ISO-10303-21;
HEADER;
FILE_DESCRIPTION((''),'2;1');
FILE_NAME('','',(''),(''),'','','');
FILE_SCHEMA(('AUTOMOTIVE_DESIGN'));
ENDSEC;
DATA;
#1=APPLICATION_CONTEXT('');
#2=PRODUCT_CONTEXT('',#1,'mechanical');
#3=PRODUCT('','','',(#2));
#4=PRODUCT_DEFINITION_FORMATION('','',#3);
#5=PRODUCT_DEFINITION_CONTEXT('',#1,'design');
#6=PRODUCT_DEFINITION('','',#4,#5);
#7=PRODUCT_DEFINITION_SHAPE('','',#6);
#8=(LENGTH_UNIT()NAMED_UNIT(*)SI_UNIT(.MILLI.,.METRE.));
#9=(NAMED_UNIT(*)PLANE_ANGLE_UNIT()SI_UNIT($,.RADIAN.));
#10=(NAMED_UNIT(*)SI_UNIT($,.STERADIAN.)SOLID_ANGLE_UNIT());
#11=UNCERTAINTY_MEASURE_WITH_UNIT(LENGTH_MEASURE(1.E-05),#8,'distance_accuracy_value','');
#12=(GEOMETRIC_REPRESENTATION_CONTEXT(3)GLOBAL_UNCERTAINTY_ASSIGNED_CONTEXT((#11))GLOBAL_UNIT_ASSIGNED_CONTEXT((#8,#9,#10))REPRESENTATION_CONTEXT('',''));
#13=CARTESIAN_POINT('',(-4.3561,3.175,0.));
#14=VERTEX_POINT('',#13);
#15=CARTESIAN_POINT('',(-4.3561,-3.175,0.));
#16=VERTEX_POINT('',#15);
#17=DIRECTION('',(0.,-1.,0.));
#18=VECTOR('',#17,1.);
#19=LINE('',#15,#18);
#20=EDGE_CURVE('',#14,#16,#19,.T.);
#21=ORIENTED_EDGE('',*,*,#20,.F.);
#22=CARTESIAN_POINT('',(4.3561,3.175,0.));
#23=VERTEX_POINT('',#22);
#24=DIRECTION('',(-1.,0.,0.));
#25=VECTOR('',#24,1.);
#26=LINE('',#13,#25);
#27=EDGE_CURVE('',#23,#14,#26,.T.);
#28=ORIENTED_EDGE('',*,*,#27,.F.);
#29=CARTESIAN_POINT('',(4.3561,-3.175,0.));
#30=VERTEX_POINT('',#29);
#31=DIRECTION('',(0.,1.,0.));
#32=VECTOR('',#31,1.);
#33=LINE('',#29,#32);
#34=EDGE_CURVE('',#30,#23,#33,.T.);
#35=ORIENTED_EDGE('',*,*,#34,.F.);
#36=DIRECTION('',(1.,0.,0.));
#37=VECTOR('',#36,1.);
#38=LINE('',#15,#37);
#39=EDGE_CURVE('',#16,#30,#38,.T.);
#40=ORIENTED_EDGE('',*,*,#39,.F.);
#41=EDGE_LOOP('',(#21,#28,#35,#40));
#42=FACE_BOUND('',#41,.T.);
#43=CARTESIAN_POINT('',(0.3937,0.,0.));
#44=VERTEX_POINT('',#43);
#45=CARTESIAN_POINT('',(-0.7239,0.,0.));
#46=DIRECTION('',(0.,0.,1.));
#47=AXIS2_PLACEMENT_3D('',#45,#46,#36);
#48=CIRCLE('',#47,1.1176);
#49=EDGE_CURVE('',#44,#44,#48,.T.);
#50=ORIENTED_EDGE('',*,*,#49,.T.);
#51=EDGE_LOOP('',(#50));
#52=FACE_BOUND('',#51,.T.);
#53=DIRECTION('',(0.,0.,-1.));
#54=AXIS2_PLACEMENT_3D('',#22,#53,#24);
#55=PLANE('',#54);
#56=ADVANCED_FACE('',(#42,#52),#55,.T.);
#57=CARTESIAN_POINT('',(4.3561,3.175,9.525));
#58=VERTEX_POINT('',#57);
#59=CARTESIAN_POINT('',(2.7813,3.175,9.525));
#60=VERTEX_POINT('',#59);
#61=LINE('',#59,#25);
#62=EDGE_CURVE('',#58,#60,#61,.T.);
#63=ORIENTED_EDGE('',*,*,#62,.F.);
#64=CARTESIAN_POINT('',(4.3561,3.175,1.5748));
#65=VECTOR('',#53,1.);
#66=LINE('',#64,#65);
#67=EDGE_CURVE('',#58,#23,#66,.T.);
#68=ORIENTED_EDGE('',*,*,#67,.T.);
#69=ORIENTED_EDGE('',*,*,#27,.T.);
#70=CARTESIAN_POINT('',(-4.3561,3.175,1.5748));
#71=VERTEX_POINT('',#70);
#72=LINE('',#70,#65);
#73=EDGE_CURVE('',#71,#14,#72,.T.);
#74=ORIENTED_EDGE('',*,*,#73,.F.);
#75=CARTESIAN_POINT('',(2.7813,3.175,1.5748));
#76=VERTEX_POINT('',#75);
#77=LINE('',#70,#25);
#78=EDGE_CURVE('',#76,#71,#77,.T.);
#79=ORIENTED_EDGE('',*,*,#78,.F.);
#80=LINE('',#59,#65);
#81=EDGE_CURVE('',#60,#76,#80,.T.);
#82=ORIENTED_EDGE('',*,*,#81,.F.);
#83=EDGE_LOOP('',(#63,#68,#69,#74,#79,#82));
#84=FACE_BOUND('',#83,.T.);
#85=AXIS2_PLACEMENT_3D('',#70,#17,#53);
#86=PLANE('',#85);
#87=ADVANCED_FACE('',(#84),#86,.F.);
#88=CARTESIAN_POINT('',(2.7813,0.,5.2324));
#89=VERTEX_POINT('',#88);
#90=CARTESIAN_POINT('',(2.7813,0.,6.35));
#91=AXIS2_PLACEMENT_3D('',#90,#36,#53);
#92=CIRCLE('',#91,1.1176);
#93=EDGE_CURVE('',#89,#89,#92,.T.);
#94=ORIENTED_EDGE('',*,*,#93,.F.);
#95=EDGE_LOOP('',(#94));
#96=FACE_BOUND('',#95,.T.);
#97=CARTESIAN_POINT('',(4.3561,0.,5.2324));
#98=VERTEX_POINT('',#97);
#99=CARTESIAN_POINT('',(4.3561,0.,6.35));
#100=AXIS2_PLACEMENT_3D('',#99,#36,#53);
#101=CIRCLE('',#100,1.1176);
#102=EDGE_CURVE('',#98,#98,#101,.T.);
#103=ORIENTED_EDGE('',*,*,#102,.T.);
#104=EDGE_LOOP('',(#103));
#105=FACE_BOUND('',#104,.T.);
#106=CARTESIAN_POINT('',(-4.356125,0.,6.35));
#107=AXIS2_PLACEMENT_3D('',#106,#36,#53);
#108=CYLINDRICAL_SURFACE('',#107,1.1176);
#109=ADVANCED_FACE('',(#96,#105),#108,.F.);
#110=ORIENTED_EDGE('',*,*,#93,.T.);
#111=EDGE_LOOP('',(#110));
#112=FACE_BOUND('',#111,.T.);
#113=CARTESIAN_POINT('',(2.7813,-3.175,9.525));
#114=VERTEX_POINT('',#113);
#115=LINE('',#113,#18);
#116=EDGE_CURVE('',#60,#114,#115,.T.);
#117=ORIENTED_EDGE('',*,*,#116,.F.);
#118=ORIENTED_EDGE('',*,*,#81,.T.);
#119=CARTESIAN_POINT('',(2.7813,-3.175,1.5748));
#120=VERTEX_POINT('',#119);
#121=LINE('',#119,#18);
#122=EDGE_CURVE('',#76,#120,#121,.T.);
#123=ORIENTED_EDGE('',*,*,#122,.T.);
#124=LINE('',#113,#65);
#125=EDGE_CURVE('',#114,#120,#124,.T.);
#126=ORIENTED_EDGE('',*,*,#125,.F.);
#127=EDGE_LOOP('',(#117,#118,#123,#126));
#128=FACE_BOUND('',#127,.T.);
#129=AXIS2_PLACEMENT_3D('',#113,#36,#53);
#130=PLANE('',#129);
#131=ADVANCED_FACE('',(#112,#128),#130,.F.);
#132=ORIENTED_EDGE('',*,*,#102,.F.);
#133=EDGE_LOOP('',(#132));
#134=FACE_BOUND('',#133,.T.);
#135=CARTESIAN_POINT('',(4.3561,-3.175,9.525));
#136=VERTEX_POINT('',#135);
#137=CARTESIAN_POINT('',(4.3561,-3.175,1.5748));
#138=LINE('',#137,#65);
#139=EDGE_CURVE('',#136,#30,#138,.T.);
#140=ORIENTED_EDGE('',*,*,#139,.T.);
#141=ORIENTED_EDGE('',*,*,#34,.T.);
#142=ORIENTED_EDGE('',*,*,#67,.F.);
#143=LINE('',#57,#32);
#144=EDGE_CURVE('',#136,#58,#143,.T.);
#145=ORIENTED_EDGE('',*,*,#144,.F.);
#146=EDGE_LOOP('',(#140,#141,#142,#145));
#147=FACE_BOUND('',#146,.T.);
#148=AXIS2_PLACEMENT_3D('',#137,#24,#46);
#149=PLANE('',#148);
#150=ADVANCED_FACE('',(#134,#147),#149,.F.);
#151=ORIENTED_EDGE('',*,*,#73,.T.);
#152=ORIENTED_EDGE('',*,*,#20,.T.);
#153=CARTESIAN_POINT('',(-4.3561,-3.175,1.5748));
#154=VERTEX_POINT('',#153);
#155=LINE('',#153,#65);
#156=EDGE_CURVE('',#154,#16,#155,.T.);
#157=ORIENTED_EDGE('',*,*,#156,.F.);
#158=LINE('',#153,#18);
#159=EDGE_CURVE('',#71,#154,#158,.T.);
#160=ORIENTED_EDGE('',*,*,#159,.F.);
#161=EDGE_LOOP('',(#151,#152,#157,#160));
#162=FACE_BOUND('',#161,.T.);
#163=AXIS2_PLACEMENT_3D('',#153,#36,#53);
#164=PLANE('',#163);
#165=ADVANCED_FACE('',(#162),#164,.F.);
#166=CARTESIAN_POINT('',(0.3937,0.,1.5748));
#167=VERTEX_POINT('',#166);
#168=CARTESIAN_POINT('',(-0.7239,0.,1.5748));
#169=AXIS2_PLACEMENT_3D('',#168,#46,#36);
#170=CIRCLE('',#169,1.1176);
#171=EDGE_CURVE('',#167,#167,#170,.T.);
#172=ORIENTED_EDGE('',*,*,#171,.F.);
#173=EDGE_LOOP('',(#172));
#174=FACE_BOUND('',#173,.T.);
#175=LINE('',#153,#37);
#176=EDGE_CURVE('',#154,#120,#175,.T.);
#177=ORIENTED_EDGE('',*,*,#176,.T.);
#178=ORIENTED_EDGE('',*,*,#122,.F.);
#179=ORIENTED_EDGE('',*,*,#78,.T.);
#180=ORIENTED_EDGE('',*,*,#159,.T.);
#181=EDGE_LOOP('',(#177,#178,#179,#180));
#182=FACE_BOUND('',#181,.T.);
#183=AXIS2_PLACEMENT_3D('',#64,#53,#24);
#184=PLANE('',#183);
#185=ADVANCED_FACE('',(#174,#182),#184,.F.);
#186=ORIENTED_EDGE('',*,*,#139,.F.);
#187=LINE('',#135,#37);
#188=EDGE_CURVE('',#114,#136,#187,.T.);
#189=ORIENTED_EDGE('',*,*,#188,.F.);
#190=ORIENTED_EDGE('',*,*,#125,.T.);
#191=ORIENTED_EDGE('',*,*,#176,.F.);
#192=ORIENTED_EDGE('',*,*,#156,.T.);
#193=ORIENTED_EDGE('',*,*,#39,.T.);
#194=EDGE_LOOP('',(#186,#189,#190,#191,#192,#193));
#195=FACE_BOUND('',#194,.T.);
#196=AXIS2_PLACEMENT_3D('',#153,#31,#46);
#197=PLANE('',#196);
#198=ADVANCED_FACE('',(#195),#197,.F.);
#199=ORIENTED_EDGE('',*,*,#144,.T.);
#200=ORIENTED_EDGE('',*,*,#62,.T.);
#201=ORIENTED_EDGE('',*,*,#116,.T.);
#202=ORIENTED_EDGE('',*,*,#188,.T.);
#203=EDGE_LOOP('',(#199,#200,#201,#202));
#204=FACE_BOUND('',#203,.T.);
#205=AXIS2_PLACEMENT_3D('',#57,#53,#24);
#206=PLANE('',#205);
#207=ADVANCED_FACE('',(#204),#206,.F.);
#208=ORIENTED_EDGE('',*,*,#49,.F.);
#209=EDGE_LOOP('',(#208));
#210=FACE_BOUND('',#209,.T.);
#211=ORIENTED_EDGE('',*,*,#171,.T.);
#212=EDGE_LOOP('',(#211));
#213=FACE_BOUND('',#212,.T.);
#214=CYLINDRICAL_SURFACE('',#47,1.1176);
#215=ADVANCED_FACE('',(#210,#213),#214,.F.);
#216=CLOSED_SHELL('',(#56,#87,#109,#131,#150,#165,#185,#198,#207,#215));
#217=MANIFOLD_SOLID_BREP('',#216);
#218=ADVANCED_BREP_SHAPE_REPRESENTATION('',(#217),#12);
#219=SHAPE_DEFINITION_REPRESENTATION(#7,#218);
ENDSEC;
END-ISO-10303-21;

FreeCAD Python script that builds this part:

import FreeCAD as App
import Part
import Sketcher

V = App.Vector
Q = App.Units.Quantity


def add_polygon(sketch, points):
    """Adds a closed chain of lines whose ends are joined by coincident constraints."""
    first, n = sketch.GeometryCount, len(points)
    for a, b in zip(points, points[1:] + points[:1]):
        sketch.addGeometry(Part.LineSegment(App.Vector(*a, 0), App.Vector(*b, 0)), False)
    for i in range(n):
        sketch.addConstraint(Sketcher.Constraint("Coincident", first + i, 2, first + (i + 1) % n, 1))

doc = App.newDocument("Part")
body = doc.addObject("PartDesign::Body", "Body")

# Sketch on XY plane
sketch1 = doc.addObject("Sketcher::SketchObject", "Sketch")
body.addObject(sketch1)
sketch1.AttachmentSupport = (doc.XY_Plane, [""])
sketch1.MapMode = "FlatFace"
add_polygon(sketch1, [(-4, 3), (-4, -3), (4, -3), (4, 3)])  # lines 0-3
sketch1.addConstraint([
    Sketcher.Constraint("Vertical", 0),
    Sketcher.Constraint("Horizontal", 1),
    Sketcher.Constraint("Vertical", 2),
    Sketcher.Constraint("Horizontal", 3),
    Sketcher.Constraint("Symmetric", 0, 2, 2, 2, -1, 1),
    Sketcher.Constraint("DistanceY", 0, 2, 0, 1, Q("0.25 in")),
    Sketcher.Constraint("DistanceX", 1, 1, 1, 2, Q("0.343 in")),
])
pad1 = doc.addObject("PartDesign::Pad", "Pad")
body.addObject(pad1)
pad1.Profile = sketch1
pad1.Length = Q("0.062 in")

# Sketch on XY plane
sketch2 = doc.addObject("Sketcher::SketchObject", "Sketch001")
body.addObject(sketch2)
sketch2.AttachmentSupport = (doc.XY_Plane, [""])
sketch2.MapMode = "FlatFace"
sketch2.AttachmentOffset = App.Placement(V(0, 0, 0.062 * 25.4), App.Rotation())
add_polygon(sketch2, [(2.8, 3.2), (2.8, -3.2), (4.4, -3.2), (4.4, 3.2)])  # lines 0-3
sketch2.addConstraint([
    Sketcher.Constraint("Vertical", 0),
    Sketcher.Constraint("Horizontal", 1),
    Sketcher.Constraint("Vertical", 2),
    Sketcher.Constraint("Horizontal", 3),
    Sketcher.Constraint("DistanceY", 0, 2, 0, 1, Q("0.25 in")),
    Sketcher.Constraint("DistanceX", 1, 1, 1, 2, Q("0.062 in")),
    Sketcher.Constraint("DistanceY", 0, 2, -1, 1, Q("0.125 in")),
    Sketcher.Constraint("DistanceX", -1, 1, 0, 2, Q("0.1095 in")),
])
pad2 = doc.addObject("PartDesign::Pad", "Pad001")
body.addObject(pad2)
pad2.Profile = sketch2
pad2.Length = Q("0.313 in")

# Sketch on XY plane
sketch3 = doc.addObject("Sketcher::SketchObject", "Sketch002")
body.addObject(sketch3)
sketch3.AttachmentSupport = (doc.XY_Plane, [""])
sketch3.MapMode = "FlatFace"
sketch3.AttachmentOffset = App.Placement(V(0, 0, 0.062 * 25.4), App.Rotation())
sketch3.addGeometry(Part.Circle(V(-0.7, 0, 0), V(0, 0, 1), 1.1), False)
sketch3.addConstraint([
    Sketcher.Constraint("PointOnObject", 0, 3, -1),
    Sketcher.Constraint("Diameter", 0, Q("0.088 in")),
    Sketcher.Constraint("DistanceX", 0, 3, -1, 1, Q("0.0285 in")),
])
pocket1 = doc.addObject("PartDesign::Pocket", "Pocket")
body.addObject(pocket1)
pocket1.Profile = sketch3
pocket1.Type = "ThroughAll"

# Sketch on YZ plane
sketch4 = doc.addObject("Sketcher::SketchObject", "Sketch003")
body.addObject(sketch4)
sketch4.AttachmentSupport = (doc.YZ_Plane, [""])
sketch4.MapMode = "FlatFace"
sketch4.AttachmentOffset = App.Placement(V(0, 0, 0.1715 * 25.4), App.Rotation())
sketch4.addGeometry(Part.Circle(V(0, 6.3, 0), V(0, 0, 1), 1.1), False)
sketch4.addConstraint([
    Sketcher.Constraint("PointOnObject", 0, 3, -2),
    Sketcher.Constraint("Diameter", 0, Q("0.088 in")),
    Sketcher.Constraint("DistanceY", -1, 1, 0, 3, Q("0.25 in")),
])
pocket2 = doc.addObject("PartDesign::Pocket", "Pocket001")
body.addObject(pocket2)
pocket2.Profile = sketch4
pocket2.Type = "ThroughAll"

doc.recompute()
